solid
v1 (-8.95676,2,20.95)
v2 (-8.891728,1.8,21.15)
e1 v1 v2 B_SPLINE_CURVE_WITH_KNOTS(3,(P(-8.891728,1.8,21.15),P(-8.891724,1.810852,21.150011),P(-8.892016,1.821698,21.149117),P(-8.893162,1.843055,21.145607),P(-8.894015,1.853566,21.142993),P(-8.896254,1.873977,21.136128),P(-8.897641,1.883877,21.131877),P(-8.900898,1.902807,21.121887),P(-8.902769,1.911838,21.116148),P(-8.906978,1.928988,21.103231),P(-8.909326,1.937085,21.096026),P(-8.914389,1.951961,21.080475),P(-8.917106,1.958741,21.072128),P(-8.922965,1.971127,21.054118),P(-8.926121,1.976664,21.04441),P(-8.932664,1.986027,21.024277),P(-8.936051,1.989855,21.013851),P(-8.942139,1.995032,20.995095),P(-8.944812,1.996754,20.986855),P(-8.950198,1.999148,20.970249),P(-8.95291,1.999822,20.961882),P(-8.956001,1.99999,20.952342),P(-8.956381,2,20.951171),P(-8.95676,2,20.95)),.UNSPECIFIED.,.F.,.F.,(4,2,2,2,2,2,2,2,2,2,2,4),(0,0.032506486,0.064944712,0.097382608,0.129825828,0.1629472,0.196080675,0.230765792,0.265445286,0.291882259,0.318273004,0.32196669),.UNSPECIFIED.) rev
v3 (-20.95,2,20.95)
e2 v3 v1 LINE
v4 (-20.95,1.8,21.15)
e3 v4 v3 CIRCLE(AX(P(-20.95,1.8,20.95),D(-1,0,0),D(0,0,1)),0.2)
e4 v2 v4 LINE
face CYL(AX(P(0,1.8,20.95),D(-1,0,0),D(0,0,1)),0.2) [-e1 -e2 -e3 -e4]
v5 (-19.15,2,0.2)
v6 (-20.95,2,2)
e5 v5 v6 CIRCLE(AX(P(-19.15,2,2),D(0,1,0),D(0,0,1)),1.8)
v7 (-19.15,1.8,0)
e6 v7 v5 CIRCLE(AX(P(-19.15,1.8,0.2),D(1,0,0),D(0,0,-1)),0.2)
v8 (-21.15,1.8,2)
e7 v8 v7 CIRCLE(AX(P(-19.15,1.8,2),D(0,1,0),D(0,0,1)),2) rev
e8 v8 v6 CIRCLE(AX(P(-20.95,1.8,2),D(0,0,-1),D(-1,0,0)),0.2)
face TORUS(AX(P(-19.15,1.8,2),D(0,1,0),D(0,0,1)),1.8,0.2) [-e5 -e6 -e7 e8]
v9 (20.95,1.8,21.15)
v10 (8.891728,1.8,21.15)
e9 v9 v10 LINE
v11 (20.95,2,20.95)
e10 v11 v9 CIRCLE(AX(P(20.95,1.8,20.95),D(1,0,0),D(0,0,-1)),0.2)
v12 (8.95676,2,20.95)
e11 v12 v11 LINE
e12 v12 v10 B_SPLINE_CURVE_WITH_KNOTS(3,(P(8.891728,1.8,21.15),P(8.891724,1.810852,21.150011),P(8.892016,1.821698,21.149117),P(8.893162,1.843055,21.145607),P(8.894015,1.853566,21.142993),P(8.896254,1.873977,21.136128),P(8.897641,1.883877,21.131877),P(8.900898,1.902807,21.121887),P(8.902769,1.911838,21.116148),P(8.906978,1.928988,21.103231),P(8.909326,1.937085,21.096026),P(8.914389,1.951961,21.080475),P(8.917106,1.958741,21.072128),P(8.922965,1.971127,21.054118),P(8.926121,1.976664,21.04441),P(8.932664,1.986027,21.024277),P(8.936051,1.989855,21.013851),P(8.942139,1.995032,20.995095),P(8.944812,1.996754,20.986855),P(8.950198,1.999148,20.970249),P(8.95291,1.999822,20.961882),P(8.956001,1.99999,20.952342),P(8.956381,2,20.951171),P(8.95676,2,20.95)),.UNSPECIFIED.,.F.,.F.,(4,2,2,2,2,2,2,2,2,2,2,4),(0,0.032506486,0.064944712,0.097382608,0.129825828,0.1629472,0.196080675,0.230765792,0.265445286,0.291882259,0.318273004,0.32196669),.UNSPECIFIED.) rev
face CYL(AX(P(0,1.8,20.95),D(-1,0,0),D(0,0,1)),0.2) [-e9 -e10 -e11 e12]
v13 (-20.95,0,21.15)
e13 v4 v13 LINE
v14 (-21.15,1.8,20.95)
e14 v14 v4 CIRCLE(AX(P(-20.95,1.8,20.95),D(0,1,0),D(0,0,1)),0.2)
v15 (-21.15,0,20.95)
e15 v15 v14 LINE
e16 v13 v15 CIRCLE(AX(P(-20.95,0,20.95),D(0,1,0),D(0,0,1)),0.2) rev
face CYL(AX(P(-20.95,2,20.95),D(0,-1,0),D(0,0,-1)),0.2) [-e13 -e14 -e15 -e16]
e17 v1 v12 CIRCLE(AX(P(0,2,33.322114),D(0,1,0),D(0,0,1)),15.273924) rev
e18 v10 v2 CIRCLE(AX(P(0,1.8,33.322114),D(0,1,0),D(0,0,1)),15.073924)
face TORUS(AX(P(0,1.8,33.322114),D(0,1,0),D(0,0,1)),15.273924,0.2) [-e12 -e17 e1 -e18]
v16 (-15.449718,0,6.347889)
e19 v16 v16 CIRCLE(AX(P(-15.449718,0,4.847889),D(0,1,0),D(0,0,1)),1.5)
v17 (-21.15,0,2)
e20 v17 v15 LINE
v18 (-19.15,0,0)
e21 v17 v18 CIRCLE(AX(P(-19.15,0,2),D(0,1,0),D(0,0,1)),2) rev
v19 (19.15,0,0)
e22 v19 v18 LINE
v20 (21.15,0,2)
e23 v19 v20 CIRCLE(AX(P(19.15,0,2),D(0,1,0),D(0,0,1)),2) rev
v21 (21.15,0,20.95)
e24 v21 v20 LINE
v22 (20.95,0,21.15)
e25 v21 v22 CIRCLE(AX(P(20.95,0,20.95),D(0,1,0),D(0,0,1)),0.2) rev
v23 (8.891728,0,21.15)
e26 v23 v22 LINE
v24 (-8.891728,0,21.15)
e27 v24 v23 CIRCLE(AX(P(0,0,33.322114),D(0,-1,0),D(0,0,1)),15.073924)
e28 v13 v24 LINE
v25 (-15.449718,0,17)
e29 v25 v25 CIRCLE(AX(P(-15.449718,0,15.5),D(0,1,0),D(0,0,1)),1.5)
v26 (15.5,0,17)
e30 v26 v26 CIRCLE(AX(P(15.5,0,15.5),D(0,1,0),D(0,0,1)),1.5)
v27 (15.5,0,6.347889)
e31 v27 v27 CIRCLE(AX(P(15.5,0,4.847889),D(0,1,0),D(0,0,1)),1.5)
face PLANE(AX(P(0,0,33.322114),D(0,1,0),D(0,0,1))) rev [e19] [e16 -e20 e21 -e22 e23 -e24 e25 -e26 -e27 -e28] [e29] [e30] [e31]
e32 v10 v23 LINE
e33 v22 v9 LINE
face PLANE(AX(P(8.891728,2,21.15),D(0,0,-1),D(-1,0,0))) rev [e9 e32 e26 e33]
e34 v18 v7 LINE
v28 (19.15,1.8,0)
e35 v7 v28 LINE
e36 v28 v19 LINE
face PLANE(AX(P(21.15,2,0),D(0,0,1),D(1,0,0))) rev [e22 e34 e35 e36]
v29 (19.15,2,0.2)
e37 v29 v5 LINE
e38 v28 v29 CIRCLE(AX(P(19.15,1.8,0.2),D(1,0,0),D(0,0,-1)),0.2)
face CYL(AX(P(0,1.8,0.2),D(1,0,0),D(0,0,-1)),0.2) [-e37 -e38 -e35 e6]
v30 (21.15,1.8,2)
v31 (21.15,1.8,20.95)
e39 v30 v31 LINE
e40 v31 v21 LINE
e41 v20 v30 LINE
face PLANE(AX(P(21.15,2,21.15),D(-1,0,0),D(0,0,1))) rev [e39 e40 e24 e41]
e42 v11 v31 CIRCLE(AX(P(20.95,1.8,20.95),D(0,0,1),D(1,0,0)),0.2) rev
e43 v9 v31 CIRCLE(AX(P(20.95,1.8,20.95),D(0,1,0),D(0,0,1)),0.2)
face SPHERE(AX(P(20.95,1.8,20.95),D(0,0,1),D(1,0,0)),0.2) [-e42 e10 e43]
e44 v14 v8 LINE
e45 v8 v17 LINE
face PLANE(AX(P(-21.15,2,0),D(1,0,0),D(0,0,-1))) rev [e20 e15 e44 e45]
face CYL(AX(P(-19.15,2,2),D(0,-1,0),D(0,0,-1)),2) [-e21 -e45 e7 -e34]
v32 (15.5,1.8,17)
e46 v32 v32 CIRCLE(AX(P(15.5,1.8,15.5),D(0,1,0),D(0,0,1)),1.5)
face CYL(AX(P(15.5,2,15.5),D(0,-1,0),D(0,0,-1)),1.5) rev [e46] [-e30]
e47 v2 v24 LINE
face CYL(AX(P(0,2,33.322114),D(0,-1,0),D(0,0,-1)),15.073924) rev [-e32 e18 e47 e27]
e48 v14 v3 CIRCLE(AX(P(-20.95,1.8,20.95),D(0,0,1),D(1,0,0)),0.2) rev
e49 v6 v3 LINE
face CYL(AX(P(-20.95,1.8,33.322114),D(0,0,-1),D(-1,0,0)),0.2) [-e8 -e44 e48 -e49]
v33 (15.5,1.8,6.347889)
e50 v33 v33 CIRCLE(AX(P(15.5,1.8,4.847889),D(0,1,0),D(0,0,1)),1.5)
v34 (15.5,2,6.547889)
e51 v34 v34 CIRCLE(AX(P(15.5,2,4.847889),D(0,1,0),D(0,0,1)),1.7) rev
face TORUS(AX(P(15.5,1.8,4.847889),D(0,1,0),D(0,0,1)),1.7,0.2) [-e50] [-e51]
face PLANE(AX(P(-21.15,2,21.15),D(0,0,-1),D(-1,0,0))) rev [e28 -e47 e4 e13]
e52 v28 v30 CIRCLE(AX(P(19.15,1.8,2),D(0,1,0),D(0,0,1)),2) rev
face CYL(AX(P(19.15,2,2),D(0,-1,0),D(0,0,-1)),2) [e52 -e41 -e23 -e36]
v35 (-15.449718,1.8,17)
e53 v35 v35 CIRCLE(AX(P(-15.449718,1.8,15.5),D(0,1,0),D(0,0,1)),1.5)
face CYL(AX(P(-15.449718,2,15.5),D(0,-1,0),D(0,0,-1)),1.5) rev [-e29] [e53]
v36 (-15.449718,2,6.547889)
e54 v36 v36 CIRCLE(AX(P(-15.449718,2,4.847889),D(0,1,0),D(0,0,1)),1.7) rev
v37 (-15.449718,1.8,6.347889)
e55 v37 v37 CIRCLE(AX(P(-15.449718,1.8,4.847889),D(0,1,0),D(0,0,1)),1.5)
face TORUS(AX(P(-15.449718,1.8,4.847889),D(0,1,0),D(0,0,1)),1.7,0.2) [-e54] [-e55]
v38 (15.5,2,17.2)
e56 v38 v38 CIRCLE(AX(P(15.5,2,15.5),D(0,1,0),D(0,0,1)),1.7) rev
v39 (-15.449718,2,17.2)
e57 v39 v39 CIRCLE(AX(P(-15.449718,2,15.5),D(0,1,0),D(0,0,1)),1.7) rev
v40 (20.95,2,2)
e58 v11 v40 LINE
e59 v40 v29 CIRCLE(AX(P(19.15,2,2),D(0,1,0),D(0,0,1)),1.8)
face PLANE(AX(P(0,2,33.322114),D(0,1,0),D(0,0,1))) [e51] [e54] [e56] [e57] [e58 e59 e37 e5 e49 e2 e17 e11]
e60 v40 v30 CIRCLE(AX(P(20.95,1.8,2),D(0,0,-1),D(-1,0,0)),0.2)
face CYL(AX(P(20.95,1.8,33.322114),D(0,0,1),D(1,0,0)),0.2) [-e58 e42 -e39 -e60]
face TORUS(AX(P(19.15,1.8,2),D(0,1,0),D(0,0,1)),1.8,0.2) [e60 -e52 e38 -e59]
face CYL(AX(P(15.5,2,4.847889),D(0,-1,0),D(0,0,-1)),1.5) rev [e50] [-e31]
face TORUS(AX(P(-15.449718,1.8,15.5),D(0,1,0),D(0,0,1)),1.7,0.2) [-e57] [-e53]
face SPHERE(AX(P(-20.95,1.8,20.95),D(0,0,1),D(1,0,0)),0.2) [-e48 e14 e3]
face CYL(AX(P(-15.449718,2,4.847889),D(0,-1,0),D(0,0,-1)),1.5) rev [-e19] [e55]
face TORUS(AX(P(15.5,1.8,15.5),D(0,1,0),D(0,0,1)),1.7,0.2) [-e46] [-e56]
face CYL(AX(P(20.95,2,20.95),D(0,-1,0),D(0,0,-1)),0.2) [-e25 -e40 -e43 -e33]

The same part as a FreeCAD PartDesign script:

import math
import FreeCAD as App
import Part
import Sketcher


def edges_at(feature, points):
    """Names of the edges that pass closest to the given points."""
    edges = feature.Shape.Edges
    near = lambda p: min(range(len(edges)), key=lambda i: edges[i].distToShape(Part.Vertex(*p))[0])
    return sorted({f"Edge{near(p) + 1}" for p in points})

doc = App.newDocument("Part")
params = doc.addObject("Spreadsheet::Sheet", "Params")
for row, (alias, value) in enumerate([
    ("sketch1_diameter", "3 mm"),
    ("sketch1_width", "42.3 mm"),
    ("sketch1_height", "21.15 mm"),
    ("pad1_length", "2 mm"),
    ("fillet_radius", "2 mm"),
    ("fillet2_radius", "0.2 mm"),
], start=1):
    params.set(f"A{row}", alias)
    params.set(f"B{row}", "=" + value)
    params.setAlias(f"B{row}", alias)

body = doc.addObject("PartDesign::Body", "Body")

sketch1 = doc.addObject("Sketcher::SketchObject", "Sketch")
body.addObject(sketch1)
sketch1.AttachmentSupport = (doc.XZ_Plane, [""])
sketch1.MapMode = "FlatFace"
sketch1.addGeometry([
    Part.LineSegment(App.Vector(-21.1, 21.1, 0), App.Vector(-8.9, 21.1, 0)),
    Part.ArcOfCircle(Part.Circle(App.Vector(0, 33.3, 0), App.Vector(0, 0, 1), 15.1), math.radians(-126), math.radians(-54)),
    Part.LineSegment(App.Vector(8.9, 21.1, 0), App.Vector(21.1, 21.1, 0)),
    Part.LineSegment(App.Vector(21.1, 21.1, 0), App.Vector(21.1, 0, 0)),
    Part.LineSegment(App.Vector(21.1, 0, 0), App.Vector(-21.1, 0, 0)),
    Part.LineSegment(App.Vector(-21.1, 0, 0), App.Vector(-21.1, 21.1, 0)),
    Part.Circle(App.Vector(-15.4, 15.5, 0), App.Vector(0, 0, 1), 1.5),
    Part.Circle(App.Vector(15.5, 15.5, 0), App.Vector(0, 0, 1), 1.5),
    Part.Circle(App.Vector(-15.4, 4.8, 0), App.Vector(0, 0, 1), 1.5),
    Part.Circle(App.Vector(15.5, 4.8, 0), App.Vector(0, 0, 1), 1.5),
], False)
sketch1.addConstraint([
    Sketcher.Constraint("Coincident", 0, 2, 1, 1),
    Sketcher.Constraint("Coincident", 1, 2, 2, 1),
    Sketcher.Constraint("Coincident", 2, 2, 3, 1),
    Sketcher.Constraint("Coincident", 3, 2, 4, 1),
    Sketcher.Constraint("Coincident", 4, 2, 5, 1),
    Sketcher.Constraint("Coincident", 5, 2, 0, 1),
    Sketcher.Constraint("Horizontal", 0),
    Sketcher.Constraint("Horizontal", 2),
    Sketcher.Constraint("Vertical", 3),
    Sketcher.Constraint("Horizontal", 4),
    Sketcher.Constraint("Vertical", 5),
    Sketcher.Constraint("Equal", 6, 7),
    Sketcher.Constraint("Equal", 7, 8),
    Sketcher.Constraint("Equal", 8, 9),
    Sketcher.Constraint("Symmetric", 3, 2, 4, 2, -1, 1),
    Sketcher.Constraint("Symmetric", 0, 2, 1, 2, -2),
    Sketcher.Constraint("Horizontal", 6, 3, 7, 3),
    Sketcher.Constraint("Horizontal", 8, 3, 9, 3),
    Sketcher.Constraint("Vertical", 6, 3, 8, 3),
    Sketcher.Constraint("Vertical", 7, 3, 9, 3),
    Sketcher.Constraint("Diameter", 6, 3.0),
    Sketcher.Constraint("DistanceX", 4, 2, 4, 1, 42.3),
    Sketcher.Constraint("DistanceY", 3, 2, 3, 1, 21.15),
    Sketcher.Constraint("DistanceY", -1, 1, 6, 3, 15.5),
    Sketcher.Constraint("DistanceX", -1, 1, 7, 3, 15.5),
    Sketcher.Constraint("Radius", 1, 15.073924),
    Sketcher.Constraint("DistanceX", 0, 1, 0, 2, 12.258272),
    Sketcher.Constraint("DistanceY", -1, 1, 8, 3, 4.847889),
    Sketcher.Constraint("DistanceX", 6, 3, 0, 2, 6.55799),
])
sketch1.setExpression("Constraints[20]", "Params.sketch1_diameter")
sketch1.setExpression("Constraints[21]", "Params.sketch1_width")
sketch1.setExpression("Constraints[22]", "Params.sketch1_height")
pad1 = doc.addObject("PartDesign::Pad", "Pad")
body.addObject(pad1)
pad1.Profile = sketch1
pad1.setExpression("Length", "Params.pad1_length")
pad1.Reversed = True
doc.recompute()

fillet = doc.addObject("PartDesign::Fillet", "Fillet")
body.addObject(fillet)
fillet.Base = (pad1, edges_at(pad1, [(-21.15, 1, 0), (21.15, 1, 0)]))
fillet.setExpression("Radius", "Params.fillet_radius")
doc.recompute()

fillet2 = doc.addObject("PartDesign::Fillet", "Fillet001")
body.addObject(fillet2)
fillet2.Base = (fillet, edges_at(fillet, [
    (0, 2, 18.248),
    (21.15, 1, 21.15),
    (-21.15, 1, 21.15),
    (15.021, 2, 21.15),
    (21.15, 2, 11.575),
    (-16.95, 2, 15.5),
    (14, 2, 15.5),
    (14, 2, 4.848),
    (-16.95, 2, 4.848),
    (-21.15, 2, 11.575),
    (0, 2, 0),
    (20.564, 2, 0.586),
    (-20.564, 2, 0.586),
    (-15.021, 2, 21.15),
]))
fillet2.setExpression("Radius", "Params.fillet2_radius")

doc.recompute()
